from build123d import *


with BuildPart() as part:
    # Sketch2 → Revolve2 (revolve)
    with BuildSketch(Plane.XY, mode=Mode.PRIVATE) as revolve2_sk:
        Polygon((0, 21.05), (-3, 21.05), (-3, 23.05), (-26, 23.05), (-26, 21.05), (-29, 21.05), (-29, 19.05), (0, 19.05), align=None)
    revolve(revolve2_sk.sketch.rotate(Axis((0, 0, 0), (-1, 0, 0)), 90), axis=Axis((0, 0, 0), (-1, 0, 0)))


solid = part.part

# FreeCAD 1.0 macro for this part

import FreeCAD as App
import Part
import Sketcher
from FreeCAD import Vector
Q = App.Units.Quantity

doc = App.newDocument("Part")
body = doc.addObject("PartDesign::Body", "Body")

sketch1 = doc.addObject("Sketcher::SketchObject", "Sketch")
body.addObject(sketch1)
sketch1.AttachmentSupport = (doc.XY_Plane, [""])
sketch1.MapMode = "FlatFace"
sketch1.addGeometry([
    Part.LineSegment(Vector(0, 21.05, 0), Vector(-3, 21.05, 0)),
    Part.LineSegment(Vector(-3, 21.05, 0), Vector(-3, 23.05, 0)),
    Part.LineSegment(Vector(-3, 23.05, 0), Vector(-26, 23.05, 0)),
    Part.LineSegment(Vector(-26, 23.05, 0), Vector(-26, 21.05, 0)),
    Part.LineSegment(Vector(-26, 21.05, 0), Vector(-29, 21.05, 0)),
    Part.LineSegment(Vector(-29, 21.05, 0), Vector(-29, 19.05, 0)),
    Part.LineSegment(Vector(-29, 19.05, 0), Vector(0, 19.05, 0)),
    Part.LineSegment(Vector(0, 19.05, 0), Vector(0, 21.05, 0)),
], False)
sketch1.addConstraint([
    Sketcher.Constraint("Coincident", 0, 2, 1, 1),
    Sketcher.Constraint("Coincident", 1, 2, 2, 1),
    Sketcher.Constraint("Coincident", 2, 2, 3, 1),
    Sketcher.Constraint("Coincident", 3, 2, 4, 1),
    Sketcher.Constraint("Coincident", 4, 2, 5, 1),
    Sketcher.Constraint("Coincident", 5, 2, 6, 1),
    Sketcher.Constraint("Coincident", 6, 2, 7, 1),
    Sketcher.Constraint("Coincident", 7, 2, 0, 1),
    Sketcher.Constraint("Horizontal", 0),
    Sketcher.Constraint("Vertical", 1),
    Sketcher.Constraint("Horizontal", 2),
    Sketcher.Constraint("Vertical", 3),
    Sketcher.Constraint("Horizontal", 4),
    Sketcher.Constraint("Vertical", 5),
    Sketcher.Constraint("Horizontal", 6),
    Sketcher.Constraint("Vertical", 7),
    Sketcher.Constraint("PointOnObject", 6, 2, -2),
    Sketcher.Constraint("Horizontal", 0, 2, 3, 2),
    Sketcher.Constraint("Equal", 0, 4),
    Sketcher.Constraint("Equal", 3, 5),
    Sketcher.Constraint("DistanceX", 0, 2, 0, 1, Q("3 mm")),
    Sketcher.Constraint("DistanceX", 2, 2, 2, 1, Q("23 mm")),
    Sketcher.Constraint("DistanceY", 1, 1, 1, 2, Q("2 mm")),
    Sketcher.Constraint("DistanceY", -1, 1, 0, 2, Q("21.05 mm")),
])
revolution = doc.addObject("PartDesign::Revolution", "Revolution")
body.addObject(revolution)
revolution.Profile = sketch1
revolution.ReferenceAxis = (sketch1, ["H_Axis"])
revolution.Angle = 360

doc.recompute()
